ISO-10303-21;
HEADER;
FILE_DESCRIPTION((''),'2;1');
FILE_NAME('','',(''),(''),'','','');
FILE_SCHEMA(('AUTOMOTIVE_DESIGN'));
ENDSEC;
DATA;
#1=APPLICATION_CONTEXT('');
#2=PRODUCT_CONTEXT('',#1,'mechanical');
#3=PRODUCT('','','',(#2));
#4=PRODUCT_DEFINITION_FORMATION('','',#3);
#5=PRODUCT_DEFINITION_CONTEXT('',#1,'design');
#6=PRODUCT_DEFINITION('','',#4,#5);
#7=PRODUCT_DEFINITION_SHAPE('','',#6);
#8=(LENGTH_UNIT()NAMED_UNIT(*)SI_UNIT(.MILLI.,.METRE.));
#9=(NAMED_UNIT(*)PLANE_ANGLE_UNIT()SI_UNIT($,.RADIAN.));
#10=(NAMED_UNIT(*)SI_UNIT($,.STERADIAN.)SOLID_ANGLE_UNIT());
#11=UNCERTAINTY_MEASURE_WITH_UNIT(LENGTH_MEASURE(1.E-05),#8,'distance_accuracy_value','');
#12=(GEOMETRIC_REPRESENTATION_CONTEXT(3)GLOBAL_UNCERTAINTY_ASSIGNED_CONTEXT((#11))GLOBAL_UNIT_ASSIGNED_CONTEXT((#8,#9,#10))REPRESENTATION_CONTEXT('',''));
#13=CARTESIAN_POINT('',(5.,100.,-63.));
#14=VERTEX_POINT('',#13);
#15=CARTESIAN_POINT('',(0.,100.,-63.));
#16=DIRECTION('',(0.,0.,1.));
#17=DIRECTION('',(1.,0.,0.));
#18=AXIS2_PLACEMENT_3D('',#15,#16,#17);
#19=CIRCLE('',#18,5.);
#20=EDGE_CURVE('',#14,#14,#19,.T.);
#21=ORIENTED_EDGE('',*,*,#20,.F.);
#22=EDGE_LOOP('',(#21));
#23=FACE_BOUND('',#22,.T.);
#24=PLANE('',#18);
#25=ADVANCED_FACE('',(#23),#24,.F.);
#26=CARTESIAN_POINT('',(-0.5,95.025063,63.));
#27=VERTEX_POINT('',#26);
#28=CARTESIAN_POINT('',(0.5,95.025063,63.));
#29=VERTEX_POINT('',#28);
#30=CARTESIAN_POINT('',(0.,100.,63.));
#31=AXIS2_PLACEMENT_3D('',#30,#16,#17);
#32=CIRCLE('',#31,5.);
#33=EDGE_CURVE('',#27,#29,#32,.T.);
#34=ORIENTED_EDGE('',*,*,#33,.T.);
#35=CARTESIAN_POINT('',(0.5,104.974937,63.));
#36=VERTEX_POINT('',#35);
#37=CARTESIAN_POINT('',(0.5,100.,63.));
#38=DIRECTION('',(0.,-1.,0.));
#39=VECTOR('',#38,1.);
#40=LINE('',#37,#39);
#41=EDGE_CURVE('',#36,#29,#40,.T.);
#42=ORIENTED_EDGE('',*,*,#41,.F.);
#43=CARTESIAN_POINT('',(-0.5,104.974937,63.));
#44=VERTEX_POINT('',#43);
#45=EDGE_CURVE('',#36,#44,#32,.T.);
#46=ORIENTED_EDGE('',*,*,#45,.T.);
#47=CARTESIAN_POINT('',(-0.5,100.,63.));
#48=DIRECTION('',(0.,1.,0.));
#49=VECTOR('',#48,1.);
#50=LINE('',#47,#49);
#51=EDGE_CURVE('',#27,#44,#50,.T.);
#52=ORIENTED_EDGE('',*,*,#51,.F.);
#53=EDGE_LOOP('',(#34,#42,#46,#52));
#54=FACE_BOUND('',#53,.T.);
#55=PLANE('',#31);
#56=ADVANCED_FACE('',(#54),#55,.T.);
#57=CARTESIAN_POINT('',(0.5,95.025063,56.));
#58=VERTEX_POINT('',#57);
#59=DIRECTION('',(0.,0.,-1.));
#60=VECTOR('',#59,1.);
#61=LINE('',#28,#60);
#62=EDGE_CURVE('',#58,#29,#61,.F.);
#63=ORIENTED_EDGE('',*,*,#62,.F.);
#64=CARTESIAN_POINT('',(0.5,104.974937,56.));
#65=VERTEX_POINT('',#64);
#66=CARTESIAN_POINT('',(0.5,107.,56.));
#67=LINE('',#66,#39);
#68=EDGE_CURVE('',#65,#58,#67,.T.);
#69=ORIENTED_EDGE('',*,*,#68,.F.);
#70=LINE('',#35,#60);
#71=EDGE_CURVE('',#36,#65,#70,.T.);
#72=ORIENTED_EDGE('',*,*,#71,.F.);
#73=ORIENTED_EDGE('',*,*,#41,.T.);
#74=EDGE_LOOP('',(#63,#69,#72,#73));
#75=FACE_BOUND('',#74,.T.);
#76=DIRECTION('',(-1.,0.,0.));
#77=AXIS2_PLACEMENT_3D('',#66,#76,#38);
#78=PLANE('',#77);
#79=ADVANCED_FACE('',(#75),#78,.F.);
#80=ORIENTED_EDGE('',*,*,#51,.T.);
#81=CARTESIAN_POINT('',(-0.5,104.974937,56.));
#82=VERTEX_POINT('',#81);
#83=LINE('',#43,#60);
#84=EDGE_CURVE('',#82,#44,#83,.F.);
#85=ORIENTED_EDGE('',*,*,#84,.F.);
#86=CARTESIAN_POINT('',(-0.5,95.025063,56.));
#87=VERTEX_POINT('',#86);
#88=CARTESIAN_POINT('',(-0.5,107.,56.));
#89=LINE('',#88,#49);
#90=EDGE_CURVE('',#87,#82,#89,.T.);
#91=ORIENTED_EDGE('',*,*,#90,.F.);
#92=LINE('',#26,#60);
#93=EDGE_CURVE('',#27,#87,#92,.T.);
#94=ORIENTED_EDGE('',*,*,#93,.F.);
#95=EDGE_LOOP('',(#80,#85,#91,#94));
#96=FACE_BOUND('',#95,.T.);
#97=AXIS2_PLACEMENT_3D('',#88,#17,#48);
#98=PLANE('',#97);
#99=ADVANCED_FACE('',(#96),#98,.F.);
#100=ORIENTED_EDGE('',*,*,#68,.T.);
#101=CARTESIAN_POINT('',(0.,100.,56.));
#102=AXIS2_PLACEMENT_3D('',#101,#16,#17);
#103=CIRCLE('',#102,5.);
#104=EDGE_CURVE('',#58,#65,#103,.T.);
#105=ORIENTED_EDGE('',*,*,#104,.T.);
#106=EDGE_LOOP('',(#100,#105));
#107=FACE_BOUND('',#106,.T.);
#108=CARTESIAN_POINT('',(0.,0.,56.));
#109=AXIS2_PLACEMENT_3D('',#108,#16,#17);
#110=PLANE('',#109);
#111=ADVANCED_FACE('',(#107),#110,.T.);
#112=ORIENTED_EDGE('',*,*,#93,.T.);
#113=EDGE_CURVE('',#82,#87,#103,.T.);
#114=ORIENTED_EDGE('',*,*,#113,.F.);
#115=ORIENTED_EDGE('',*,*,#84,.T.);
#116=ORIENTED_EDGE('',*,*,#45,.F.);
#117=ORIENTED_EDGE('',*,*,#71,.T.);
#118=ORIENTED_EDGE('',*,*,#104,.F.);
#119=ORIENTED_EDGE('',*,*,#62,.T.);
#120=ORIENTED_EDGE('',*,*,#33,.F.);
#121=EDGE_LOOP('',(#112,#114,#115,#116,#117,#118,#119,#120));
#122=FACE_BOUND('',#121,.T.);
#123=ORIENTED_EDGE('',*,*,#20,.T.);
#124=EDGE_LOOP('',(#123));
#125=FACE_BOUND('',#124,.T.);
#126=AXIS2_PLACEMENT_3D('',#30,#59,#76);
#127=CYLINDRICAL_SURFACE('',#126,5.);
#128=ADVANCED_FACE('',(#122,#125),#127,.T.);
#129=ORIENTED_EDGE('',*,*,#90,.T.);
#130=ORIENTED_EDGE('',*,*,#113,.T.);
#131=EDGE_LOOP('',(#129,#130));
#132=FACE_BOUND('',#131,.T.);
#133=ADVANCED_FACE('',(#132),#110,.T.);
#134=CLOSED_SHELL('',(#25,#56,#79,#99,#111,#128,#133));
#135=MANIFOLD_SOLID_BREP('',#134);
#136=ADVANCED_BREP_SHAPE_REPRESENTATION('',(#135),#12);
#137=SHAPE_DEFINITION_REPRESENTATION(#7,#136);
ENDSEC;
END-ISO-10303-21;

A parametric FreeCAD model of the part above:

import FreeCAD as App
import Part
import Sketcher

V = App.Vector
Q = App.Units.Quantity

doc = App.newDocument("Part")
body = doc.addObject("PartDesign::Body", "Body")

# Sketch on XY plane
sketch1 = doc.addObject("Sketcher::SketchObject", "Sketch")
body.addObject(sketch1)
sketch1.AttachmentSupport = (doc.XY_Plane, [""])
sketch1.MapMode = "FlatFace"
sketch1.addGeometry(Part.Circle(V(0, 100, 0), V(0, 0, 1), 5), False)
sketch1.addConstraint(Sketcher.Constraint("PointOnObject", 0, 3, -2))
sketch1.addConstraint(Sketcher.Constraint("Diameter", 0, Q("10 mm")))
sketch1.addConstraint(Sketcher.Constraint("DistanceY", -1, 1, 0, 3, Q("100 mm")))
pad1 = doc.addObject("PartDesign::Pad", "Pad")
body.addObject(pad1)
pad1.Profile = sketch1
pad1.Length = 126
pad1.Midplane = True

# Sketch on XY plane
sketch2 = doc.addObject("Sketcher::SketchObject", "Sketch001")
body.addObject(sketch2)
sketch2.AttachmentSupport = (doc.XY_Plane, [""])
sketch2.MapMode = "FlatFace"
sketch2.AttachmentOffset = App.Placement(V(0, 0, 63), App.Rotation())
sketch2.addGeometry(Part.LineSegment(V(0.5, 107, 0), V(0.5, 93, 0)), False)
sketch2.addGeometry(Part.LineSegment(V(0.5, 93, 0), V(5.5, 93, 0)), False)
sketch2.addGeometry(Part.LineSegment(V(5.5, 93, 0), V(5.5, 107, 0)), False)
sketch2.addGeometry(Part.LineSegment(V(5.5, 107, 0), V(0.5, 107, 0)), False)
sketch2.addGeometry(Part.LineSegment(V(-5.5, 107, 0), V(-5.5, 93, 0)), False)
sketch2.addGeometry(Part.LineSegment(V(-5.5, 93, 0), V(-0.5, 93, 0)), False)
sketch2.addGeometry(Part.LineSegment(V(-0.5, 93, 0), V(-0.5, 107, 0)), False)
sketch2.addGeometry(Part.LineSegment(V(-0.5, 107, 0), V(-5.5, 107, 0)), False)
sketch2.addConstraint(Sketcher.Constraint("Coincident", 0, 2, 1, 1))
sketch2.addConstraint(Sketcher.Constraint("Coincident", 1, 2, 2, 1))
sketch2.addConstraint(Sketcher.Constraint("Coincident", 2, 2, 3, 1))
sketch2.addConstraint(Sketcher.Constraint("Coincident", 3, 2, 0, 1))
sketch2.addConstraint(Sketcher.Constraint("Coincident", 4, 2, 5, 1))
sketch2.addConstraint(Sketcher.Constraint("Coincident", 5, 2, 6, 1))
sketch2.addConstraint(Sketcher.Constraint("Coincident", 6, 2, 7, 1))
sketch2.addConstraint(Sketcher.Constraint("Coincident", 7, 2, 4, 1))
sketch2.addConstraint(Sketcher.Constraint("Vertical", 0))
sketch2.addConstraint(Sketcher.Constraint("Horizontal", 1))
sketch2.addConstraint(Sketcher.Constraint("Vertical", 2))
sketch2.addConstraint(Sketcher.Constraint("Horizontal", 3))
sketch2.addConstraint(Sketcher.Constraint("Vertical", 4))
sketch2.addConstraint(Sketcher.Constraint("Horizontal", 5))
sketch2.addConstraint(Sketcher.Constraint("Vertical", 6))
sketch2.addConstraint(Sketcher.Constraint("Horizontal", 7))
sketch2.addConstraint(Sketcher.Constraint("Symmetric", 1, 2, 4, 2, -2))
sketch2.addConstraint(Sketcher.Constraint("Symmetric", 3, 2, 6, 2, -2))
sketch2.addConstraint(Sketcher.Constraint("DistanceX", 1, 1, 1, 2, Q("5 mm")))
sketch2.addConstraint(Sketcher.Constraint("DistanceY", 0, 2, 0, 1, Q("14 mm")))
sketch2.addConstraint(Sketcher.Constraint("DistanceY", -1, 1, 0, 2, Q("93 mm")))
sketch2.addConstraint(Sketcher.Constraint("DistanceX", 4, 2, 0, 2, Q("6 mm")))
pocket1 = doc.addObject("PartDesign::Pocket", "Pocket")
body.addObject(pocket1)
pocket1.Profile = sketch2
pocket1.Length = 7

doc.recompute()
